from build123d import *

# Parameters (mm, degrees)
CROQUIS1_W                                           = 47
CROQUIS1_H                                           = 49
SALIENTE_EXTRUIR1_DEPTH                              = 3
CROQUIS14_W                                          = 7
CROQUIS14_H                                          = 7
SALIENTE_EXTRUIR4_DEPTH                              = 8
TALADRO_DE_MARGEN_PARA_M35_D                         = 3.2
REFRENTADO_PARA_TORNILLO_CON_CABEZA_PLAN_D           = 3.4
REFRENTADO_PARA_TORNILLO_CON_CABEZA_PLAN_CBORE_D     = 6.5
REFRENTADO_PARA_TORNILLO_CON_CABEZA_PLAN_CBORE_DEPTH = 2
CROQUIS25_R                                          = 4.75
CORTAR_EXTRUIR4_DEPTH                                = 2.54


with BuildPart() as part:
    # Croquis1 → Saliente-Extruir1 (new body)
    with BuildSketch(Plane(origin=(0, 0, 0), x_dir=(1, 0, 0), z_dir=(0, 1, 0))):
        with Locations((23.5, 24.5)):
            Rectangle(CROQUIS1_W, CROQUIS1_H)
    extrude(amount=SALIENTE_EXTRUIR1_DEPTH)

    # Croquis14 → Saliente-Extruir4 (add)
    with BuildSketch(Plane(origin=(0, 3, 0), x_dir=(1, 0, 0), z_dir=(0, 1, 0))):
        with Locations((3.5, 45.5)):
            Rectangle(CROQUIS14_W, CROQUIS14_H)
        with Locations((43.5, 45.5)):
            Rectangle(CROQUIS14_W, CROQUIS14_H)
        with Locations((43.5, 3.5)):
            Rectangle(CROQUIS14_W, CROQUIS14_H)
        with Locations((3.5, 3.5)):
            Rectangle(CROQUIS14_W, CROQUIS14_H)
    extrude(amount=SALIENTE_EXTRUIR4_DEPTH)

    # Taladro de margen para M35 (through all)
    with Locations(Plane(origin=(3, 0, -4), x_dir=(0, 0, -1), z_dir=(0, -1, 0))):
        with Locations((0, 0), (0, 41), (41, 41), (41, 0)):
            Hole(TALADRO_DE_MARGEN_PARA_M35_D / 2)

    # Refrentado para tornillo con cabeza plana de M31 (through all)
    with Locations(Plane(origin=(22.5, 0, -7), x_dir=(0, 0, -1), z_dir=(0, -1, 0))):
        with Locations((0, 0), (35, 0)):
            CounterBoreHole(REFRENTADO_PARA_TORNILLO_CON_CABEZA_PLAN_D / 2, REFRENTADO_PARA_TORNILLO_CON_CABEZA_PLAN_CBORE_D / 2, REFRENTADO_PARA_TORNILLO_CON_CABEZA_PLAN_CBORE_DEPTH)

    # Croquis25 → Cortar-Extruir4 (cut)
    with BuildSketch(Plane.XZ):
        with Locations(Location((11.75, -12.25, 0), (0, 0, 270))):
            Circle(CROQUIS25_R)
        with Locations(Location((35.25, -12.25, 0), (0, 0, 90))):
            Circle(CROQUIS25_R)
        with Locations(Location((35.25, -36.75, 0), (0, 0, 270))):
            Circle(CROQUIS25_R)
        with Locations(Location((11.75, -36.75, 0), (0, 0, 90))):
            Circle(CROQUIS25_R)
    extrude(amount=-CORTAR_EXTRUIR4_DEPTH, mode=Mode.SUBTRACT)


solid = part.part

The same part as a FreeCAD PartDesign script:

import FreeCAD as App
import Part
import Sketcher
Q = App.Units.Quantity


def add_polygon(sketch, points):
    """Adds a closed chain of lines whose ends are joined by coincident constraints."""
    first, n = sketch.GeometryCount, len(points)
    for a, b in zip(points, points[1:] + points[:1]):
        sketch.addGeometry(Part.LineSegment(App.Vector(*a, 0), App.Vector(*b, 0)), False)
    for i in range(n):
        sketch.addConstraint(Sketcher.Constraint("Coincident", first + i, 2, first + (i + 1) % n, 1))

doc = App.newDocument("Part")
body = doc.addObject("PartDesign::Body", "Body")

# Sketch on XZ plane
sketch1 = body.newObject("Sketcher::SketchObject", "Sketch")
sketch1.AttachmentSupport = (doc.getObject("XZ_Plane"), [""])
sketch1.MapMode = "FlatFace"
add_polygon(sketch1, [(0, -49), (0, 0), (47, 0), (47, -49)])  # lines 0-3
sketch1.addConstraint([
    Sketcher.Constraint("Vertical", 0),
    Sketcher.Constraint("Horizontal", 1),
    Sketcher.Constraint("Vertical", 2),
    Sketcher.Constraint("Horizontal", 3),
    Sketcher.Constraint("Coincident", 0, 2, -1, 1),
    Sketcher.Constraint("DistanceX", 1, 1, 1, 2, Q("47 mm")),
    Sketcher.Constraint("DistanceY", 0, 1, 0, 2, Q("49 mm")),
])
pad1 = body.newObject("PartDesign::Pad", "Pad")
pad1.Profile = sketch1
pad1.Length = 3
pad1.Reversed = True

# Sketch on XZ plane
sketch2 = body.newObject("Sketcher::SketchObject", "Sketch001")
sketch2.AttachmentSupport = (doc.getObject("XZ_Plane"), [""])
sketch2.MapMode = "FlatFace"
sketch2.AttachmentOffset = App.Placement(App.Vector(0, 0, -3), App.Rotation())
add_polygon(sketch2, [(0, -49), (0, -42), (7, -42), (7, -49)])  # lines 0-3
add_polygon(sketch2, [(40, -49), (40, -42), (47, -42), (47, -49)])  # lines 4-7
add_polygon(sketch2, [(40, -7), (40, 0), (47, 0), (47, -7)])  # lines 8-11
add_polygon(sketch2, [(0, -7), (0, 0), (7, 0), (7, -7)])  # lines 12-15
sketch2.addConstraint([
    Sketcher.Constraint("Vertical", 0),
    Sketcher.Constraint("Horizontal", 1),
    Sketcher.Constraint("Vertical", 2),
    Sketcher.Constraint("Horizontal", 3),
    Sketcher.Constraint("Vertical", 4),
    Sketcher.Constraint("Horizontal", 5),
    Sketcher.Constraint("Vertical", 6),
    Sketcher.Constraint("Horizontal", 7),
    Sketcher.Constraint("Vertical", 8),
    Sketcher.Constraint("Horizontal", 9),
    Sketcher.Constraint("Vertical", 10),
    Sketcher.Constraint("Horizontal", 11),
    Sketcher.Constraint("Vertical", 12),
    Sketcher.Constraint("Horizontal", 13),
    Sketcher.Constraint("Vertical", 14),
    Sketcher.Constraint("Horizontal", 15),
    Sketcher.Constraint("Coincident", 12, 2, -1, 1),
    Sketcher.Constraint("PointOnObject", 0, 2, -2),
    Sketcher.Constraint("PointOnObject", 8, 2, -1),
    Sketcher.Constraint("Horizontal", 1, 2, 4, 2),
    Sketcher.Constraint("Horizontal", 3, 2, 6, 2),
    Sketcher.Constraint("Horizontal", 11, 2, 14, 2),
    Sketcher.Constraint("Vertical", 7, 2, 8, 2),
    Sketcher.Constraint("Vertical", 6, 2, 9, 2),
    Sketcher.Constraint("Vertical", 2, 2, 13, 2),
    Sketcher.Constraint("Equal", 3, 5),
    Sketcher.Constraint("Equal", 15, 0),
    Sketcher.Constraint("Equal", 6, 8),
    Sketcher.Constraint("DistanceX", 1, 1, 1, 2, Q("7 mm")),
    Sketcher.Constraint("DistanceY", 0, 2, -1, 1, Q("42 mm")),
    Sketcher.Constraint("DistanceX", -1, 1, 4, 2, Q("40 mm")),
])
pad2 = body.newObject("PartDesign::Pad", "Pad001")
pad2.Profile = sketch2
pad2.Length = 8
pad2.Reversed = True

# Sketch on XZ plane
sketch3 = body.newObject("Sketcher::SketchObject", "Sketch002")
sketch3.AttachmentSupport = (doc.getObject("XZ_Plane"), [""])
sketch3.MapMode = "FlatFace"
sketch3.addGeometry([
    Part.Circle(App.Vector(3, -4, 0), App.Vector(0, 0, 1), 1.6),
    Part.Circle(App.Vector(44, -4, 0), App.Vector(0, 0, 1), 1.6),
    Part.Circle(App.Vector(44, -45, 0), App.Vector(0, 0, 1), 1.6),
    Part.Circle(App.Vector(3, -45, 0), App.Vector(0, 0, 1), 1.6),
], False)
sketch3.addConstraint([
    Sketcher.Constraint("Equal", 0, 1),
    Sketcher.Constraint("Equal", 1, 2),
    Sketcher.Constraint("Equal", 2, 3),
    Sketcher.Constraint("Horizontal", 0, 3, 1, 3),
    Sketcher.Constraint("Horizontal", 2, 3, 3, 3),
    Sketcher.Constraint("Vertical", 1, 3, 2, 3),
    Sketcher.Constraint("Vertical", 0, 3, 3, 3),
    Sketcher.Constraint("Diameter", 0, Q("3.2 mm")),
    Sketcher.Constraint("DistanceX", -1, 1, 0, 3, Q("3 mm")),
    Sketcher.Constraint("DistanceY", 0, 3, -1, 1, Q("4 mm")),
    Sketcher.Constraint("DistanceX", -1, 1, 1, 3, Q("44 mm")),
    Sketcher.Constraint("DistanceY", 2, 3, -1, 1, Q("45 mm")),
])
doc.recompute()
hole = body.newObject("PartDesign::Hole", "Hole")
hole.Profile = sketch3
hole.ThreadType = "None"
hole.Diameter = 3.2
hole.DepthType = "ThroughAll"

# Sketch on XZ plane
sketch4 = body.newObject("Sketcher::SketchObject", "Sketch003")
sketch4.AttachmentSupport = (doc.getObject("XZ_Plane"), [""])
sketch4.MapMode = "FlatFace"
sketch4.addGeometry([
    Part.Circle(App.Vector(22.5, -7, 0), App.Vector(0, 0, 1), 1.7),
    Part.Circle(App.Vector(22.5, -42, 0), App.Vector(0, 0, 1), 1.7),
], False)
sketch4.addConstraint([
    Sketcher.Constraint("Equal", 0, 1),
    Sketcher.Constraint("Vertical", 0, 3, 1, 3),
    Sketcher.Constraint("Diameter", 0, Q("3.4 mm")),
    Sketcher.Constraint("DistanceY", 0, 3, -1, 1, Q("7 mm")),
    Sketcher.Constraint("DistanceY", 1, 3, -1, 1, Q("42 mm")),
    Sketcher.Constraint("DistanceX", -1, 1, 0, 3, Q("22.5 mm")),
])
doc.recompute()
hole2 = body.newObject("PartDesign::Hole", "Hole001")
hole2.Profile = sketch4
hole2.ThreadType = "None"
hole2.Diameter = 3.4
hole2.DepthType = "ThroughAll"
hole2.HoleCutType = "Counterbore"
hole2.HoleCutDiameter = 6.5
hole2.HoleCutDepth = 2

# Sketch on XZ plane
sketch5 = body.newObject("Sketcher::SketchObject", "Sketch004")
sketch5.AttachmentSupport = (doc.getObject("XZ_Plane"), [""])
sketch5.MapMode = "FlatFace"
sketch5.addGeometry([
    Part.Circle(App.Vector(11.75, -12.25, 0), App.Vector(0, 0, 1), 4.75),
    Part.Circle(App.Vector(35.25, -12.25, 0), App.Vector(0, 0, 1), 4.75),
    Part.Circle(App.Vector(35.25, -36.75, 0), App.Vector(0, 0, 1), 4.75),
    Part.Circle(App.Vector(11.75, -36.75, 0), App.Vector(0, 0, 1), 4.75),
], False)
sketch5.addConstraint([
    Sketcher.Constraint("Equal", 0, 1),
    Sketcher.Constraint("Equal", 1, 2),
    Sketcher.Constraint("Equal", 2, 3),
    Sketcher.Constraint("Horizontal", 0, 3, 1, 3),
    Sketcher.Constraint("Horizontal", 2, 3, 3, 3),
    Sketcher.Constraint("Vertical", 1, 3, 2, 3),
    Sketcher.Constraint("Vertical", 0, 3, 3, 3),
    Sketcher.Constraint("Diameter", 0, Q("9.5 mm")),
    Sketcher.Constraint("DistanceX", 0, 3, 1, 3, Q("23.5 mm")),
    Sketcher.Constraint("DistanceY", 2, 3, 1, 3, Q("24.5 mm")),
    Sketcher.Constraint("DistanceX", -1, 1, 0, 3, Q("11.75 mm")),
    Sketcher.Constraint("DistanceY", 0, 3, -1, 1, Q("12.25 mm")),
])
pocket1 = body.newObject("PartDesign::Pocket", "Pocket")
pocket1.Profile = sketch5
pocket1.Length = 2.54

doc.recompute()
